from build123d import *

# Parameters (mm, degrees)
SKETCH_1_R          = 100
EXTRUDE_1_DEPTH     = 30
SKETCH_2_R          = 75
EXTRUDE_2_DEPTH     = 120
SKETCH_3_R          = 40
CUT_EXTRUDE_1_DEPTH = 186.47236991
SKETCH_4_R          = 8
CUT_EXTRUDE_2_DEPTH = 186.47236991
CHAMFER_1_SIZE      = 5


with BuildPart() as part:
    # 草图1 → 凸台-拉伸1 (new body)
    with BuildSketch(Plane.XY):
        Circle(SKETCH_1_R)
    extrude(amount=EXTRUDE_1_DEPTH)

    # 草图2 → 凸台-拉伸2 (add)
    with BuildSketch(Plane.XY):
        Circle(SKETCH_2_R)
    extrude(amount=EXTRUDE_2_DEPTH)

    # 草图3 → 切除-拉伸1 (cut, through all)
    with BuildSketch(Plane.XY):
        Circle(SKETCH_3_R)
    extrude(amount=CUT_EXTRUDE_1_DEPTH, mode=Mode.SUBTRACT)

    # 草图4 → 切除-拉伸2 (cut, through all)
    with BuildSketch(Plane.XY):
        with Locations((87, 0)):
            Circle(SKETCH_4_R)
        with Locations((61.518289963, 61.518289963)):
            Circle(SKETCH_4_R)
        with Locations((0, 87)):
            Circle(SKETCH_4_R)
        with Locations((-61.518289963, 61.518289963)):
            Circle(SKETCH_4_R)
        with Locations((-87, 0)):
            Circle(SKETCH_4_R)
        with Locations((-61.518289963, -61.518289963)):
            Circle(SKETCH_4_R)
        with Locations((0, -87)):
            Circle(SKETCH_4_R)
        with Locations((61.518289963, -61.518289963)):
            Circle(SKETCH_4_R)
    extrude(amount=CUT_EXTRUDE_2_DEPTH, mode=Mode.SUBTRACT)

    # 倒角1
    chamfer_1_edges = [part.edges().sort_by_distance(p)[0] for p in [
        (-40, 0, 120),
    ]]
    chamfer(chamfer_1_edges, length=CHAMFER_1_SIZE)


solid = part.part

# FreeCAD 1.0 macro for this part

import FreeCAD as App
import Part
import Sketcher
from FreeCAD import Vector


def edges_at(feature, points):
    """Names of the edges that pass closest to the given points."""
    edges = feature.Shape.Edges
    near = lambda p: min(range(len(edges)), key=lambda i: edges[i].distToShape(Part.Vertex(*p))[0])
    return sorted({f"Edge{near(p) + 1}" for p in points})

doc = App.newDocument("Part")
body = doc.addObject("PartDesign::Body", "Body")

sketch1 = doc.addObject("Sketcher::SketchObject", "Sketch")
body.addObject(sketch1)
sketch1.AttachmentSupport = (doc.XY_Plane, [""])
sketch1.MapMode = "FlatFace"
sketch1.addGeometry(Part.Circle(Vector(0, 0, 0), Vector(0, 0, 1), 100), False)
sketch1.addConstraint([
    Sketcher.Constraint("Coincident", 0, 3, -1, 1),
    Sketcher.Constraint("Diameter", 0, 200.0),
])
pad1 = doc.addObject("PartDesign::Pad", "Pad")
body.addObject(pad1)
pad1.Profile = sketch1
pad1.Length = 30

sketch2 = doc.addObject("Sketcher::SketchObject", "Sketch001")
body.addObject(sketch2)
sketch2.AttachmentSupport = (doc.XY_Plane, [""])
sketch2.MapMode = "FlatFace"
sketch2.addGeometry(Part.Circle(Vector(0, 0, 0), Vector(0, 0, 1), 75), False)
sketch2.addConstraint([
    Sketcher.Constraint("Coincident", 0, 3, -1, 1),
    Sketcher.Constraint("Diameter", 0, 150.0),
])
pad2 = doc.addObject("PartDesign::Pad", "Pad001")
body.addObject(pad2)
pad2.Profile = sketch2
pad2.Length = 120

sketch3 = doc.addObject("Sketcher::SketchObject", "Sketch002")
body.addObject(sketch3)
sketch3.AttachmentSupport = (doc.XY_Plane, [""])
sketch3.MapMode = "FlatFace"
sketch3.addGeometry(Part.Circle(Vector(0, 0, 0), Vector(0, 0, 1), 40), False)
sketch3.addConstraint([
    Sketcher.Constraint("Coincident", 0, 3, -1, 1),
    Sketcher.Constraint("Diameter", 0, 80.0),
])
pocket1 = doc.addObject("PartDesign::Pocket", "Pocket")
body.addObject(pocket1)
pocket1.Profile = sketch3
pocket1.Type = "ThroughAll"
pocket1.Reversed = True

sketch4 = doc.addObject("Sketcher::SketchObject", "Sketch003")
body.addObject(sketch4)
sketch4.AttachmentSupport = (doc.XY_Plane, [""])
sketch4.MapMode = "FlatFace"
sketch4.addGeometry([
    Part.Circle(Vector(87, 0, 0), Vector(0, 0, 1), 8),
    Part.Circle(Vector(62, 62, 0), Vector(0, 0, 1), 8),
    Part.Circle(Vector(0, 87, 0), Vector(0, 0, 1), 8),
    Part.Circle(Vector(-62, 62, 0), Vector(0, 0, 1), 8),
    Part.Circle(Vector(-87, 0, 0), Vector(0, 0, 1), 8),
    Part.Circle(Vector(-62, -62, 0), Vector(0, 0, 1), 8),
    Part.Circle(Vector(0, -87, 0), Vector(0, 0, 1), 8),
    Part.Circle(Vector(62, -62, 0), Vector(0, 0, 1), 8),
], False)
sketch4.addConstraint([
    Sketcher.Constraint("Equal", 0, 1),
    Sketcher.Constraint("Equal", 1, 2),
    Sketcher.Constraint("Equal", 2, 3),
    Sketcher.Constraint("Equal", 3, 4),
    Sketcher.Constraint("Equal", 4, 5),
    Sketcher.Constraint("Equal", 5, 6),
    Sketcher.Constraint("Equal", 6, 7),
    Sketcher.Constraint("Symmetric", 0, 3, 4, 3, -1, 1),
    Sketcher.Constraint("Symmetric", 1, 3, 5, 3, -1, 1),
    Sketcher.Constraint("Symmetric", 2, 3, 6, 3, -1, 1),
    Sketcher.Constraint("Symmetric", 3, 3, 7, 3, -1, 1),
    Sketcher.Constraint("Symmetric", 1, 3, 3, 3, -2),
    Sketcher.Constraint("PointOnObject", 0, 3, -1),
    Sketcher.Constraint("PointOnObject", 2, 3, -2),
    Sketcher.Constraint("Diameter", 0, 16.0),
    Sketcher.Constraint("DistanceX", -1, 1, 0, 3, 87.0),
    Sketcher.Constraint("DistanceY", -1, 1, 2, 3, 87.0),
    Sketcher.Constraint("DistanceX", -1, 1, 1, 3, 61.51829),
    Sketcher.Constraint("DistanceY", -1, 1, 1, 3, 61.51829),
])
pocket2 = doc.addObject("PartDesign::Pocket", "Pocket001")
body.addObject(pocket2)
pocket2.Profile = sketch4
pocket2.Type = "ThroughAll"
pocket2.Reversed = True
doc.recompute()

chamfer = doc.addObject("PartDesign::Chamfer", "Chamfer")
body.addObject(chamfer)
chamfer.Base = (pocket2, edges_at(pocket2, [(-40, 0, 120)]))
chamfer.Size = 5

doc.recompute()
